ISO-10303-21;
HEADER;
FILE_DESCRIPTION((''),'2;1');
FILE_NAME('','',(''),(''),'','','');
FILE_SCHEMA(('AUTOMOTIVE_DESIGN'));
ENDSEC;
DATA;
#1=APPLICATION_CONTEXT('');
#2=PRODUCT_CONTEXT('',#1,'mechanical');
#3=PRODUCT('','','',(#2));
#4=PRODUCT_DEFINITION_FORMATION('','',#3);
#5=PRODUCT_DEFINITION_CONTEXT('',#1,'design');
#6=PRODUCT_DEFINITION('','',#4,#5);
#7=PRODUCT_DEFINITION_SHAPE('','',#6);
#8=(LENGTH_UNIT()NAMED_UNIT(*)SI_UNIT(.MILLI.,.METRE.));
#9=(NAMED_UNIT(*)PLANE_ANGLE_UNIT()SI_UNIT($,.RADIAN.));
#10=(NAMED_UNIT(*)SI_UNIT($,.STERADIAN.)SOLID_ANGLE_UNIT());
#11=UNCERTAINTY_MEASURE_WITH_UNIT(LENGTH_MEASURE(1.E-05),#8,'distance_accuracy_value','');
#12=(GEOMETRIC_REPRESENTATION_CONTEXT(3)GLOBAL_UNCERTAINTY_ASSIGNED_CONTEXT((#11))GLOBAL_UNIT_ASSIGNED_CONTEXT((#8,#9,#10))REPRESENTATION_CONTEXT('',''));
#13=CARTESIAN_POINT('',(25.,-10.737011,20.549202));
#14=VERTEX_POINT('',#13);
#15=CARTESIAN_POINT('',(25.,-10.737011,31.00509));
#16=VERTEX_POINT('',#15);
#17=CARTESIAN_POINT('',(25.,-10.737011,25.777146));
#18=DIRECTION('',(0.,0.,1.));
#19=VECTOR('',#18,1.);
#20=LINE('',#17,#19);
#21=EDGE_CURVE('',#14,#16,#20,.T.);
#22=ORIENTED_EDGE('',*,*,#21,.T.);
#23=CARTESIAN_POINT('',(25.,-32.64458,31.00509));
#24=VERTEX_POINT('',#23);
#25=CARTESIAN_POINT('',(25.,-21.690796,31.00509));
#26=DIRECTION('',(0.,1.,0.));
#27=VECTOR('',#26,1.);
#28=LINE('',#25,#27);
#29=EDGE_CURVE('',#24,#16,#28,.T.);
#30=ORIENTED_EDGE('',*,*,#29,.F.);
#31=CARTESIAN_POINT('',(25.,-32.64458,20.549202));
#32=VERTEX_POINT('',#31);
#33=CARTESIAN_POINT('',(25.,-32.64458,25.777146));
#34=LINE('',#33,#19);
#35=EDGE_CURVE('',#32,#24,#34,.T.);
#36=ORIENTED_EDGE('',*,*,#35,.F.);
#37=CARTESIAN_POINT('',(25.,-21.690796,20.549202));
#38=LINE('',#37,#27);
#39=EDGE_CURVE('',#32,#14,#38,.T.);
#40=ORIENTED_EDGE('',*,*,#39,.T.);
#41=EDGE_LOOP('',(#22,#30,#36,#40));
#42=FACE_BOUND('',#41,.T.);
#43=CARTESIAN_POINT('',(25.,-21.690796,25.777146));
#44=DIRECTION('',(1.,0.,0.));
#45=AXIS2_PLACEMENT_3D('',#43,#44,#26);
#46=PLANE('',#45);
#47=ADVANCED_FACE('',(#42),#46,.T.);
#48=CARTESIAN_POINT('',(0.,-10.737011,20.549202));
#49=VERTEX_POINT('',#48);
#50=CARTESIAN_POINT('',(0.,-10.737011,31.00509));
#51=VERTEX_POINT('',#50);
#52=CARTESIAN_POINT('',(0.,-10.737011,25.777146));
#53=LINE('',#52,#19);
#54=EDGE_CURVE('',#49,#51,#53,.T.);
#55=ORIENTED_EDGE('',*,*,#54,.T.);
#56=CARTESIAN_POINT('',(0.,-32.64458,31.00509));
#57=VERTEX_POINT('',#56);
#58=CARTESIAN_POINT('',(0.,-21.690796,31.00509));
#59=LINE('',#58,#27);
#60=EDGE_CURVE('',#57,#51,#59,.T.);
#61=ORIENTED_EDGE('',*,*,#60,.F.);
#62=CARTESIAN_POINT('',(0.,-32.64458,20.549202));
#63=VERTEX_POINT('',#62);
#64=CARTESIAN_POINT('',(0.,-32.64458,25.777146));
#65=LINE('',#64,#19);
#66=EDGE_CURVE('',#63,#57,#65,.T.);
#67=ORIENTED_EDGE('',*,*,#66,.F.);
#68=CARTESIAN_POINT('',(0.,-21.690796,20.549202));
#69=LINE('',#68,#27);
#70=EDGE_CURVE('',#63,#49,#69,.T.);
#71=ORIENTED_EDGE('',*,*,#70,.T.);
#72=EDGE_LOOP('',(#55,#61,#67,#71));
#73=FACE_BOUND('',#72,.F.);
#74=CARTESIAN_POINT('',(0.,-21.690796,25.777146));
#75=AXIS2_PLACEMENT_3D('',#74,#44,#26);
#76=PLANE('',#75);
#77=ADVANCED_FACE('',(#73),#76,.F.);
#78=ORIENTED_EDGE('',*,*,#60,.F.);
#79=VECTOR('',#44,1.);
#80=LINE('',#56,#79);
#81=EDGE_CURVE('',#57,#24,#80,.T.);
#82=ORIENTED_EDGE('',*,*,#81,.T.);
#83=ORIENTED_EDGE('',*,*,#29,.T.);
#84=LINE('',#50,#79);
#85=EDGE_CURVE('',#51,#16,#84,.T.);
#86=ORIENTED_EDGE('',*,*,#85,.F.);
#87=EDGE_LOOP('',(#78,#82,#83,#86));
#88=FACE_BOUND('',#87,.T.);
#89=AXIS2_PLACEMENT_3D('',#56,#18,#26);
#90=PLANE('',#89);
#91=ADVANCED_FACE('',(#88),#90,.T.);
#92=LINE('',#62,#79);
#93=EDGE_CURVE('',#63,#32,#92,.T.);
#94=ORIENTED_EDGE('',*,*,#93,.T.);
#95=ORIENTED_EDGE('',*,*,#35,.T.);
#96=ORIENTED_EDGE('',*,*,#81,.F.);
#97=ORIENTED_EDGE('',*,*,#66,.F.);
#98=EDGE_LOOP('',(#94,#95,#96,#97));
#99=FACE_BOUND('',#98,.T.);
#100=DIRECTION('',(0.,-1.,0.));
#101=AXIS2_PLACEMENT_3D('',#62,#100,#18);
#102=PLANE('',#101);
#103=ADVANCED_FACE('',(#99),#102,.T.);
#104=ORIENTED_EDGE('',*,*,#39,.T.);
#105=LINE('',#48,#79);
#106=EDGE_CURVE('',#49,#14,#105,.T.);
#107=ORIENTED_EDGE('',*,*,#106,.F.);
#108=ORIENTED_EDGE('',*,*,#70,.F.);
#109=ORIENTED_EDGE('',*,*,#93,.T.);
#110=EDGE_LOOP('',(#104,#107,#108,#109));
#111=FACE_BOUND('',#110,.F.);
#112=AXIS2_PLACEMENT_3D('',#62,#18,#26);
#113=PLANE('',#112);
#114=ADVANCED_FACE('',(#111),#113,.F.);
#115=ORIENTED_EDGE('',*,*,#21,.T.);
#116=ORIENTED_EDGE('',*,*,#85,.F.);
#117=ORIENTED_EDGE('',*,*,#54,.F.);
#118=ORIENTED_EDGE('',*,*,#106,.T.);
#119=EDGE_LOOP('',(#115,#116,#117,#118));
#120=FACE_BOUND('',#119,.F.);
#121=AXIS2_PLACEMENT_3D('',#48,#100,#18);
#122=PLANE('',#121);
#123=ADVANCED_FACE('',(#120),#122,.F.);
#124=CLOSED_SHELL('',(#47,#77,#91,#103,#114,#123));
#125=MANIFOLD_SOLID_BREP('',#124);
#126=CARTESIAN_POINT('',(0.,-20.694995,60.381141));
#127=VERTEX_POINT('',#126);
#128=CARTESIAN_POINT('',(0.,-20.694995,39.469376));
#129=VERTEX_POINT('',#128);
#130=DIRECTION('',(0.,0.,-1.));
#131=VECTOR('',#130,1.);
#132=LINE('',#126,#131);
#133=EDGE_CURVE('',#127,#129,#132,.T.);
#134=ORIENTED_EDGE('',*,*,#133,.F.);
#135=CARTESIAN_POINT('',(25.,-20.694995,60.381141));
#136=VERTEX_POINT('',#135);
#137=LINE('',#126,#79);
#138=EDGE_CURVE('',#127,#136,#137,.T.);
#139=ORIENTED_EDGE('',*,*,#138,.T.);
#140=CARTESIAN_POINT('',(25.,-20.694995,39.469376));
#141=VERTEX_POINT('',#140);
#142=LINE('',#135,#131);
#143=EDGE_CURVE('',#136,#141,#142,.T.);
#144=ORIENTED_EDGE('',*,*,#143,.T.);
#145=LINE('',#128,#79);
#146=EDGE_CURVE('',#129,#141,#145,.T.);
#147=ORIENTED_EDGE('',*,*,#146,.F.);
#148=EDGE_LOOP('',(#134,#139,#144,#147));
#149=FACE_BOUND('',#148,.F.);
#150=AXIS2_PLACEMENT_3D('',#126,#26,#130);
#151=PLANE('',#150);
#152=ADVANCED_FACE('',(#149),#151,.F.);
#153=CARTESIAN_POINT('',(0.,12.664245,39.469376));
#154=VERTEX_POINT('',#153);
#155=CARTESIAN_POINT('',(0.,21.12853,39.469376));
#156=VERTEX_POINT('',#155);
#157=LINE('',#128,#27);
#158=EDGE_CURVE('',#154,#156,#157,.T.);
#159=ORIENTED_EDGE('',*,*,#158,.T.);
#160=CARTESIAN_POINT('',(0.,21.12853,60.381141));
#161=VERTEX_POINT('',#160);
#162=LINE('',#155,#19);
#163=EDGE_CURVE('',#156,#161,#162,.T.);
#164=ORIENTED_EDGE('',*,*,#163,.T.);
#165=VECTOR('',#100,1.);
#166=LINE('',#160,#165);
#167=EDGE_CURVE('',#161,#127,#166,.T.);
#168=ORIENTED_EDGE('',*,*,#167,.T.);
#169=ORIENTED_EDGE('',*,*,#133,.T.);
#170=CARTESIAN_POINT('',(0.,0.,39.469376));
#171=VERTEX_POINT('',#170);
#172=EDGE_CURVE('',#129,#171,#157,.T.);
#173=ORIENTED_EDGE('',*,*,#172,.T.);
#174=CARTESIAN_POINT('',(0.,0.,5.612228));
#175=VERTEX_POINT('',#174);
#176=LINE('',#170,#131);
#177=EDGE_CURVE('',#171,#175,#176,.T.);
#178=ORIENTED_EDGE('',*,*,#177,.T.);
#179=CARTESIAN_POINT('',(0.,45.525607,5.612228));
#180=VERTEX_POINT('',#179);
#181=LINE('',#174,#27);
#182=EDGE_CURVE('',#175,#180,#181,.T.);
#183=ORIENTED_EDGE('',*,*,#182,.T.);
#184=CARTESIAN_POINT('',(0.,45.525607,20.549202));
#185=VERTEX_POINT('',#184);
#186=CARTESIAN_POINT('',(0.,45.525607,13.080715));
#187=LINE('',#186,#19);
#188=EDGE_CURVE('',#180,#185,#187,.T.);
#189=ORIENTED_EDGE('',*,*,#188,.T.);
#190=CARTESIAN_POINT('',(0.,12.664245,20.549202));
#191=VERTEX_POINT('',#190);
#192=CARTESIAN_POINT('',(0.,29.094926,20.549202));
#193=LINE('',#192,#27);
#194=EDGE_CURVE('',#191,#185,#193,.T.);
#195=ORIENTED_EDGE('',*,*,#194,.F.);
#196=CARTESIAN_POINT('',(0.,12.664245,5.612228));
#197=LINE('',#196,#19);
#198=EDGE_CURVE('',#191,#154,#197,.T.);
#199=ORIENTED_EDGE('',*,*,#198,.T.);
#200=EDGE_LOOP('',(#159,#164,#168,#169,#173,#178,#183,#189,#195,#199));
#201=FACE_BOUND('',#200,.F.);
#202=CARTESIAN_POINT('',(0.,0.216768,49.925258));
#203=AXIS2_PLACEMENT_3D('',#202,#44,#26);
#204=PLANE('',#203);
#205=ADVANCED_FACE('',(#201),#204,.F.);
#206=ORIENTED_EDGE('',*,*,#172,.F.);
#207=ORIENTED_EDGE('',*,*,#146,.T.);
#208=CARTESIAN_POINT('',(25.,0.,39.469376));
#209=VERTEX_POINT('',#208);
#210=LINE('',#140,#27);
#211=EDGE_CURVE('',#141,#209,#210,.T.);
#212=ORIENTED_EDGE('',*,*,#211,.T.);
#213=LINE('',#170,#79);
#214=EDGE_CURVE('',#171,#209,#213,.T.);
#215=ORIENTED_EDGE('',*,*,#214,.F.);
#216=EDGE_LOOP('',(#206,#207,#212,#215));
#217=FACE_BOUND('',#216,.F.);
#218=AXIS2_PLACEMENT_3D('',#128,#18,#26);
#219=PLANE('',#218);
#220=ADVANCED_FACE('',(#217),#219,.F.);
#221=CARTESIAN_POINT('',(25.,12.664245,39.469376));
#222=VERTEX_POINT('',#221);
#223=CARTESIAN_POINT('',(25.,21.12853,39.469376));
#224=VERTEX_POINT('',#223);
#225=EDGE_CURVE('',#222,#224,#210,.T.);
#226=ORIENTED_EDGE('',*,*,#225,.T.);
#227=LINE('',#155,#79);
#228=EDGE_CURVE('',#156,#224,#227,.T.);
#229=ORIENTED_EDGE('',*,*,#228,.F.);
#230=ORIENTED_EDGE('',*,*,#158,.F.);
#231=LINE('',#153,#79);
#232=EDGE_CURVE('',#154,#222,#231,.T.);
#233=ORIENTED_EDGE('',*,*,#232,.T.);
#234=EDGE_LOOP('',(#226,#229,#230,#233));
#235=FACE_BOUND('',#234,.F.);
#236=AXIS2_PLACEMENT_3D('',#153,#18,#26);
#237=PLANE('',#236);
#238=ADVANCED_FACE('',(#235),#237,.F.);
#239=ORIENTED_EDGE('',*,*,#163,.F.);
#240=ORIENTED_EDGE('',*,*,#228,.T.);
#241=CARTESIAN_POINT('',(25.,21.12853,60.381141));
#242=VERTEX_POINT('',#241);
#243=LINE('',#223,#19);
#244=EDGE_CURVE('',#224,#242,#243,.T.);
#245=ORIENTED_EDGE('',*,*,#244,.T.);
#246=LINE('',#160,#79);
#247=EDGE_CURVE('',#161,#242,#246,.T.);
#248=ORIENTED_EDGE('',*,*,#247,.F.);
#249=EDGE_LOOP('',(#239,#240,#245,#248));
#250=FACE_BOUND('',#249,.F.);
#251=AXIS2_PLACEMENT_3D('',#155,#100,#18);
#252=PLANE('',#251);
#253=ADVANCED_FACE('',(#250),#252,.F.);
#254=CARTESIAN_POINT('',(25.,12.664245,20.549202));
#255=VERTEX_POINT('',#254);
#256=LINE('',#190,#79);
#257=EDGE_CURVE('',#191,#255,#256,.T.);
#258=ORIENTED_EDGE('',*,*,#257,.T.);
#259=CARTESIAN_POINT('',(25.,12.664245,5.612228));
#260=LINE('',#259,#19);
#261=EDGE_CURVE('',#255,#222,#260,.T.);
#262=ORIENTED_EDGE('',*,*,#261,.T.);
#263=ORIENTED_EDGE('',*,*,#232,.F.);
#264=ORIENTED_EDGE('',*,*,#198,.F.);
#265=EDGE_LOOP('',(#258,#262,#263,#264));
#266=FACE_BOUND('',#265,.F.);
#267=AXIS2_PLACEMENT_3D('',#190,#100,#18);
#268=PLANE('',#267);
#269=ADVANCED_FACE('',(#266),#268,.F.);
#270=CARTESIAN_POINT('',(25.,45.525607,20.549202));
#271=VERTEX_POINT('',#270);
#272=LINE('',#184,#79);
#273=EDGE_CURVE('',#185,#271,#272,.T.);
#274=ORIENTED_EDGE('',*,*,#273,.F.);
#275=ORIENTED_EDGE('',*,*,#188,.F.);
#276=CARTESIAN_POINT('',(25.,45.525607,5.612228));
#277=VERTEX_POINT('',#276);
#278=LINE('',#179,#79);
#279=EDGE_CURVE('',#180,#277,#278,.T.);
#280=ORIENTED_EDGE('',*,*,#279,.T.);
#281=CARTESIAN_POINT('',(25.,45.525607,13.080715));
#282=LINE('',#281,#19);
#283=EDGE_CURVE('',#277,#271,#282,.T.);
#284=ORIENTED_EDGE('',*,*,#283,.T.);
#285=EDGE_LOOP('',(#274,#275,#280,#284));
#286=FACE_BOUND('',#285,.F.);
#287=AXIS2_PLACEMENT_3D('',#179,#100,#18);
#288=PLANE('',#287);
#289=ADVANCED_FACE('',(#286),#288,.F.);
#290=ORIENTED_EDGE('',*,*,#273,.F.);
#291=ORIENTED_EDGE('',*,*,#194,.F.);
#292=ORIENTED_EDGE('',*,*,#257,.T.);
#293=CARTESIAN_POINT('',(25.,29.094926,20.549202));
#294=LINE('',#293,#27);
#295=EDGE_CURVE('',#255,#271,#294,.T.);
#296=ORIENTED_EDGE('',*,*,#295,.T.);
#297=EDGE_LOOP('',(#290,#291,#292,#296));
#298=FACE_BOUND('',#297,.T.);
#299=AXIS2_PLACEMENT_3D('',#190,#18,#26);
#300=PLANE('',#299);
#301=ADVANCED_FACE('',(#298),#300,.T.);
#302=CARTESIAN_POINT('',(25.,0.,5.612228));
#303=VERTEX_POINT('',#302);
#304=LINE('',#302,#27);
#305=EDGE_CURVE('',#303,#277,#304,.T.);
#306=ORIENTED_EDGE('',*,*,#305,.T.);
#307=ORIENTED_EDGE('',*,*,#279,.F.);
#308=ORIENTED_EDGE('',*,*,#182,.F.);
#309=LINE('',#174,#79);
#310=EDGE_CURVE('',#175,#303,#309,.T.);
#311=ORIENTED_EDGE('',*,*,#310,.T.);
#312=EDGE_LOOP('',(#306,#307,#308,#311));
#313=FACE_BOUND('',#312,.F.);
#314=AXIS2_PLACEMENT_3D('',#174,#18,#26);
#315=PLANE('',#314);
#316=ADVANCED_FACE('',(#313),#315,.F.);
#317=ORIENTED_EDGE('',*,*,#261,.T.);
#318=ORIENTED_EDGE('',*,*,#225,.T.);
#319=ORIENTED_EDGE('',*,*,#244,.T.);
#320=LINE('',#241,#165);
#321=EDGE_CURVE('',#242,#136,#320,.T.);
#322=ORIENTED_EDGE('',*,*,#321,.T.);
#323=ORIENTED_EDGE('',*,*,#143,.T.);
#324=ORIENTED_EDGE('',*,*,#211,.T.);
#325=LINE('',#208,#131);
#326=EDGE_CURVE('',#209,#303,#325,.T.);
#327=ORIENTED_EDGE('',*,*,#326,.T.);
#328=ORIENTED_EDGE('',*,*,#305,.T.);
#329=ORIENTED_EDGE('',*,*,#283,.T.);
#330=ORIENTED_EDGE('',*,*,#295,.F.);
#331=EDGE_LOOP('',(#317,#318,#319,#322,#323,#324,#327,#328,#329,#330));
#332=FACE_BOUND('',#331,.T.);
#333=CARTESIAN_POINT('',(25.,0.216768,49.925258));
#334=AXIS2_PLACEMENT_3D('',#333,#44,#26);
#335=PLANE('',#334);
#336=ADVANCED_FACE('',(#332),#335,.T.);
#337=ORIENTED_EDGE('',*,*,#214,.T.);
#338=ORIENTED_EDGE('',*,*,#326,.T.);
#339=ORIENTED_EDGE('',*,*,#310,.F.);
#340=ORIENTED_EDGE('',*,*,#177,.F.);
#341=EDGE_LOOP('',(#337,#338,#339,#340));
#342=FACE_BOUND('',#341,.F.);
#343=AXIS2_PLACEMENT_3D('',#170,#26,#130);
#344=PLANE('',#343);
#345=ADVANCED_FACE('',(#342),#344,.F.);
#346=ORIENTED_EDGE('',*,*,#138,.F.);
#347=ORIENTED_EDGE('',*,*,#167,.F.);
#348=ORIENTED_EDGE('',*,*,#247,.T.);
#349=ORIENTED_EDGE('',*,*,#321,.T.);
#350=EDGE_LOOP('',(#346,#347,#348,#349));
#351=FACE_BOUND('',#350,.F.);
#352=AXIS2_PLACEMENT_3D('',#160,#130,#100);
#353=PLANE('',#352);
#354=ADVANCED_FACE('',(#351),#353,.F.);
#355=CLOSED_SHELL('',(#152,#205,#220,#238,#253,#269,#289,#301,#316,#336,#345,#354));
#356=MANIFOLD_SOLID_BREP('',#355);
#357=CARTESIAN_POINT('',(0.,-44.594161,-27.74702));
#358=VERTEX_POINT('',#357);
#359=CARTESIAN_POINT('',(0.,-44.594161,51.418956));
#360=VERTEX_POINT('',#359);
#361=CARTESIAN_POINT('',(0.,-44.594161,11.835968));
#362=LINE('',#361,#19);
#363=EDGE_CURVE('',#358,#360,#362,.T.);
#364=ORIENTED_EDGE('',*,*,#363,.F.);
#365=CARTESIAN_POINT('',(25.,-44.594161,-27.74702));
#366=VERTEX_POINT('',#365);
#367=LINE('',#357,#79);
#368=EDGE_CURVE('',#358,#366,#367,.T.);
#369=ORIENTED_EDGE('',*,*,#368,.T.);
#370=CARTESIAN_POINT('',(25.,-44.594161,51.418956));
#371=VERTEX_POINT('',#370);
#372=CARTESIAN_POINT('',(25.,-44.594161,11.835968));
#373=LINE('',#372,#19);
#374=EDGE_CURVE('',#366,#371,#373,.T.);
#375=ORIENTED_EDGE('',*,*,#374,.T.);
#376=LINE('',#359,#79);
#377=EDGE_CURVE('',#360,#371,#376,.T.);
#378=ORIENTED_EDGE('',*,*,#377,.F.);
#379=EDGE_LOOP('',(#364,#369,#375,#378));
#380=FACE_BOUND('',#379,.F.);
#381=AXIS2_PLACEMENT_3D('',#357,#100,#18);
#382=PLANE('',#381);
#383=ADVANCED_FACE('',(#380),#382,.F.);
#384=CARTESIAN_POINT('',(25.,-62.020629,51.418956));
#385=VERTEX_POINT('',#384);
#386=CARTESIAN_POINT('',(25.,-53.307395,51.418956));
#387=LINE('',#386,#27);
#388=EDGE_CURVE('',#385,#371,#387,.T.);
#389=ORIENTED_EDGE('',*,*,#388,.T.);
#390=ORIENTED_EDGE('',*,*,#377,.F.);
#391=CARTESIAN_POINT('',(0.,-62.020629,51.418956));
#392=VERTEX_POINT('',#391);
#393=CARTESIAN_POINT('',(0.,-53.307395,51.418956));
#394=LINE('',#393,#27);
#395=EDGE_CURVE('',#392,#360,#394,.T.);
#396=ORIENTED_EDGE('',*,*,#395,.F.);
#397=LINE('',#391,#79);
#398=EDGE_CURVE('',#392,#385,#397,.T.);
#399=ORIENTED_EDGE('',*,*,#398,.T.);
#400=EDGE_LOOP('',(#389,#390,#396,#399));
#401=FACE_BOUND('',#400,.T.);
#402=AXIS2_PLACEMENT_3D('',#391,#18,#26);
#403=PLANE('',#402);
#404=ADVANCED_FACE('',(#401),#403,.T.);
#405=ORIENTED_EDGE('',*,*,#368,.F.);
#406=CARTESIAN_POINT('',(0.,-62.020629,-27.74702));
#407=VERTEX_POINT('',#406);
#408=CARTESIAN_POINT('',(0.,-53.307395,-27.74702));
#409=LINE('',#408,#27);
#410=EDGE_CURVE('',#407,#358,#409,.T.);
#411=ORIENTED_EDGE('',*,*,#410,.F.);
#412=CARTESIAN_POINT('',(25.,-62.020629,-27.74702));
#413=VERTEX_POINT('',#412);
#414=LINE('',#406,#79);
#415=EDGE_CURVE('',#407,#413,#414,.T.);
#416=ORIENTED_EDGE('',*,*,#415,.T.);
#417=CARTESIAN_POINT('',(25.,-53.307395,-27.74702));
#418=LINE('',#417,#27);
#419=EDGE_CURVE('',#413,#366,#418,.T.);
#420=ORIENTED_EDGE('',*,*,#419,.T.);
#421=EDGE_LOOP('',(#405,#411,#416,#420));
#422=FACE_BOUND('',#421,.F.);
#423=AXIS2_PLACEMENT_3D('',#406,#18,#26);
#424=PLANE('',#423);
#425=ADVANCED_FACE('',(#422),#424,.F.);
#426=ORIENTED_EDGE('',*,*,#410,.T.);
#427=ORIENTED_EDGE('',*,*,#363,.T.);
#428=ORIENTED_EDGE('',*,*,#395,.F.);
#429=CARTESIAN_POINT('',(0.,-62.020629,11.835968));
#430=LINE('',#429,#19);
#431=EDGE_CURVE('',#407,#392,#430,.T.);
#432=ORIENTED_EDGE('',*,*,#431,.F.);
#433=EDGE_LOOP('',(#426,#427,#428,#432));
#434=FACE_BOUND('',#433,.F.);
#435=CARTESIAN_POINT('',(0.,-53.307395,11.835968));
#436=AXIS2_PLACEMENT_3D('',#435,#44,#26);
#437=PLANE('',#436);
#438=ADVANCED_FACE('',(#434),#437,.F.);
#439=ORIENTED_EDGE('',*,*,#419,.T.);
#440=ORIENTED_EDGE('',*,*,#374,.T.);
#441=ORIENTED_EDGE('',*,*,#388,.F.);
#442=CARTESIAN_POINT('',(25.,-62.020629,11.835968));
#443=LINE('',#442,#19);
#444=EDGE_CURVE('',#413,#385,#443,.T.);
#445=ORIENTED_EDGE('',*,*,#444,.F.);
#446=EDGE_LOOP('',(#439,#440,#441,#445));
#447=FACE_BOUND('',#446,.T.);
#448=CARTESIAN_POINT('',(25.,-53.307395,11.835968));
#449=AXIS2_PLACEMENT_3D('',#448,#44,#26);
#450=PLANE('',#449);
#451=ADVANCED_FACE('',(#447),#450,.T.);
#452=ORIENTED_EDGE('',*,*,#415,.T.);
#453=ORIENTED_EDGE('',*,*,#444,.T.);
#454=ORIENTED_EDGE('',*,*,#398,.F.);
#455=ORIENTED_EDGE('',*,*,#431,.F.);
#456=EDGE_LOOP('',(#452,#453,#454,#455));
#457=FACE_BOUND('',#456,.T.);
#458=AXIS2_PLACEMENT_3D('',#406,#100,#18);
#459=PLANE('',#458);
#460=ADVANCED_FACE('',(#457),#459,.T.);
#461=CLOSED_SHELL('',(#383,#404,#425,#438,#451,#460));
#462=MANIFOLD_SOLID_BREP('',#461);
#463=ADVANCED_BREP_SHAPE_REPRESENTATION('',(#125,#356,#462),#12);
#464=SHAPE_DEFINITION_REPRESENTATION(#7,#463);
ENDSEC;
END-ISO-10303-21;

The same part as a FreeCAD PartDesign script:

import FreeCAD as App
import Part
import Sketcher

V = App.Vector


def add_polygon(sketch, points):
    """Adds a closed chain of lines whose ends are joined by coincident constraints."""
    first, n = sketch.GeometryCount, len(points)
    for a, b in zip(points, points[1:] + points[:1]):
        sketch.addGeometry(Part.LineSegment(App.Vector(*a, 0), App.Vector(*b, 0)), False)
    for i in range(n):
        sketch.addConstraint(Sketcher.Constraint("Coincident", first + i, 2, first + (i + 1) % n, 1))

doc = App.newDocument("Part")
body = doc.addObject("PartDesign::Body", "Body")
body.AllowCompound = True

sketch1 = body.newObject("Sketcher::SketchObject", "Sketch")
sketch1.AttachmentSupport = (doc.getObject("YZ_Plane"), [""])
sketch1.MapMode = "FlatFace"
add_polygon(sketch1, [(-62, 51), (-62, -28), (-45, -28), (-45, 51)])
add_polygon(sketch1, [(-33, 31), (-33, 21), (-11, 21), (-11, 31)])
add_polygon(sketch1, [(-21, 60), (-21, 39), (0, 39), (0, 6), (46, 6), (46, 21), (13, 21), (13, 39), (21, 39), (21, 60)])
sketch1.addConstraint([
    Sketcher.Constraint("Vertical", 0),
    Sketcher.Constraint("Horizontal", 1),
    Sketcher.Constraint("Vertical", 2),
    Sketcher.Constraint("Horizontal", 3),
    Sketcher.Constraint("Vertical", 4),
    Sketcher.Constraint("Horizontal", 5),
    Sketcher.Constraint("Vertical", 6),
    Sketcher.Constraint("Horizontal", 7),
    Sketcher.Constraint("Vertical", 8),
    Sketcher.Constraint("Horizontal", 9),
    Sketcher.Constraint("Vertical", 10),
    Sketcher.Constraint("Horizontal", 11),
    Sketcher.Constraint("Vertical", 12),
    Sketcher.Constraint("Horizontal", 13),
    Sketcher.Constraint("Vertical", 14),
    Sketcher.Constraint("Horizontal", 15),
    Sketcher.Constraint("Vertical", 16),
    Sketcher.Constraint("Horizontal", 17),
    Sketcher.Constraint("PointOnObject", 9, 2, -2),
    Sketcher.Constraint("Horizontal", 5, 2, 12, 2),
    Sketcher.Constraint("Horizontal", 9, 2, 14, 2),
    Sketcher.Constraint("DistanceX", 1, 1, 1, 2, 17.426469),
    Sketcher.Constraint("DistanceX", 5, 1, 5, 2, 21.907569),
    Sketcher.Constraint("DistanceX", 8, 2, 11, 2, 66.220602),
    Sketcher.Constraint("DistanceX", 9, 1, 9, 2, 20.694995),
    Sketcher.Constraint("DistanceX", 13, 2, 13, 1, 32.861362),
    Sketcher.Constraint("DistanceX", 15, 1, 15, 2, 8.464285),
    Sketcher.Constraint("DistanceY", 0, 2, 0, 1, 79.165976),
    Sketcher.Constraint("DistanceY", 4, 2, 4, 1, 10.455888),
    Sketcher.Constraint("DistanceY", 8, 2, 8, 1, 20.911765),
    Sketcher.Constraint("DistanceY", 10, 2, 10, 1, 33.857148),
    Sketcher.Constraint("DistanceY", 12, 1, 12, 2, 14.936974),
    Sketcher.Constraint("DistanceX", 0, 2, -1, 1, 62.020629),
    Sketcher.Constraint("DistanceY", 0, 2, -1, 1, 27.74702),
    Sketcher.Constraint("DistanceX", 4, 2, -1, 1, 32.64458),
    Sketcher.Constraint("DistanceY", -1, 1, 6, 2, 31.00509),
])
pad1 = body.newObject("PartDesign::Pad", "Pad")
pad1.Profile = sketch1
pad1.Length = 25

doc.recompute()
